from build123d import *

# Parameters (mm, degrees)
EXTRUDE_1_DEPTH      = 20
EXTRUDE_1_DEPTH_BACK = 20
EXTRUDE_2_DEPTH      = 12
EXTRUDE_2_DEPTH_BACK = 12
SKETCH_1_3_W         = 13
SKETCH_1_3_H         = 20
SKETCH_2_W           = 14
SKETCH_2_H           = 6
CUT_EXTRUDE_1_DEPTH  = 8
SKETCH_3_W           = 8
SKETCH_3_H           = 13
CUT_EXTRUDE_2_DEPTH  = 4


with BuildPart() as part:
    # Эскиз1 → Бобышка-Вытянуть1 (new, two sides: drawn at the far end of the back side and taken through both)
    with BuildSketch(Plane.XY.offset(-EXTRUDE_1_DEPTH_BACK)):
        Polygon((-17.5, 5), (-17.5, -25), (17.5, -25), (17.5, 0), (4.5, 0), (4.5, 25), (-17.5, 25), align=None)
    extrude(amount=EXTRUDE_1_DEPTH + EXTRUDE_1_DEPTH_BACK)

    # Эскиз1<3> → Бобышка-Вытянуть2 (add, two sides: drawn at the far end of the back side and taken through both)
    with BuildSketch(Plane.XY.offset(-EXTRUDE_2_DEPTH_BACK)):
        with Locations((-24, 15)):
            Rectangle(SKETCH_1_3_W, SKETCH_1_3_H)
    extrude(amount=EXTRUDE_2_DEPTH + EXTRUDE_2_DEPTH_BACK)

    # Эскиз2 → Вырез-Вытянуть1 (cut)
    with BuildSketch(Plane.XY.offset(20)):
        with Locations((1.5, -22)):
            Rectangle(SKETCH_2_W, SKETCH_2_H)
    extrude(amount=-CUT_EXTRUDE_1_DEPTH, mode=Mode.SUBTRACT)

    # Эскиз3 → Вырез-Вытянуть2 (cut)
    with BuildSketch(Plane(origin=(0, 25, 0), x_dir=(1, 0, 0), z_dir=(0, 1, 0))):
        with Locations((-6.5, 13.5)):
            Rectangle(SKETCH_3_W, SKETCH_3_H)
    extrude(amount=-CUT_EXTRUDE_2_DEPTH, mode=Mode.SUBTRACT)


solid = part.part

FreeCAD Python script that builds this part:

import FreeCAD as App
import Part
import Sketcher
from FreeCAD import Vector
Q = App.Units.Quantity


def add_polygon(sketch, points):
    """Adds a closed chain of lines whose ends are joined by coincident constraints."""
    first, n = sketch.GeometryCount, len(points)
    for a, b in zip(points, points[1:] + points[:1]):
        sketch.addGeometry(Part.LineSegment(App.Vector(*a, 0), App.Vector(*b, 0)), False)
    for i in range(n):
        sketch.addConstraint(Sketcher.Constraint("Coincident", first + i, 2, first + (i + 1) % n, 1))

doc = App.newDocument("Part")
body = doc.addObject("PartDesign::Body", "Body")

# Sketch on XY plane
sketch1 = body.newObject("Sketcher::SketchObject", "Sketch")
sketch1.AttachmentSupport = (doc.getObject("XY_Plane"), [""])
sketch1.MapMode = "FlatFace"
add_polygon(sketch1, [(-18, -25), (18, -25), (18, 0), (4, 0), (4, 25), (-18, 25)])  # lines 0-5
sketch1.addConstraint([
    Sketcher.Constraint("Horizontal", 0),
    Sketcher.Constraint("Vertical", 1),
    Sketcher.Constraint("Horizontal", 2),
    Sketcher.Constraint("Vertical", 3),
    Sketcher.Constraint("Horizontal", 4),
    Sketcher.Constraint("Vertical", 5),
    Sketcher.Constraint("Symmetric", 0, 2, 4, 2, -1, 1),
    Sketcher.Constraint("PointOnObject", 1, 2, -1),
    Sketcher.Constraint("DistanceX", 0, 1, 0, 2, Q("35 mm")),
    Sketcher.Constraint("DistanceX", 2, 2, 2, 1, Q("13 mm")),
    Sketcher.Constraint("DistanceY", 1, 1, 1, 2, Q("25 mm")),
])
pad1 = body.newObject("PartDesign::Pad", "Pad")
pad1.Profile = sketch1
pad1.Type = "TwoLengths"
pad1.Length = 20
pad1.Length2 = 20

# Sketch on XY plane
sketch2 = body.newObject("Sketcher::SketchObject", "Sketch001")
sketch2.AttachmentSupport = (doc.getObject("XY_Plane"), [""])
sketch2.MapMode = "FlatFace"
add_polygon(sketch2, [(-30, 25), (-30, 5), (-18, 5), (-18, 25)])  # lines 0-3
sketch2.addConstraint([
    Sketcher.Constraint("Vertical", 0),
    Sketcher.Constraint("Horizontal", 1),
    Sketcher.Constraint("Vertical", 2),
    Sketcher.Constraint("Horizontal", 3),
    Sketcher.Constraint("DistanceX", 1, 1, 1, 2, Q("13 mm")),
    Sketcher.Constraint("DistanceY", 0, 2, 0, 1, Q("20 mm")),
    Sketcher.Constraint("DistanceY", -1, 1, 0, 2, Q("5 mm")),
    Sketcher.Constraint("DistanceX", 0, 2, -1, 1, Q("30.5 mm")),
])
pad2 = body.newObject("PartDesign::Pad", "Pad001")
pad2.Profile = sketch2
pad2.Type = "TwoLengths"
pad2.Length = 12
pad2.Length2 = 12

# Sketch on XY plane
sketch3 = body.newObject("Sketcher::SketchObject", "Sketch002")
sketch3.AttachmentSupport = (doc.getObject("XY_Plane"), [""])
sketch3.MapMode = "FlatFace"
sketch3.AttachmentOffset = App.Placement(Vector(0, 0, 20), App.Rotation())
add_polygon(sketch3, [(-6, -19), (-6, -25), (8, -25), (8, -19)])  # lines 0-3
sketch3.addConstraint([
    Sketcher.Constraint("Vertical", 0),
    Sketcher.Constraint("Horizontal", 1),
    Sketcher.Constraint("Vertical", 2),
    Sketcher.Constraint("Horizontal", 3),
    Sketcher.Constraint("DistanceX", 1, 1, 1, 2, Q("14 mm")),
    Sketcher.Constraint("DistanceY", 0, 2, 0, 1, Q("6 mm")),
    Sketcher.Constraint("DistanceY", 0, 2, -1, 1, Q("25 mm")),
    Sketcher.Constraint("DistanceX", 0, 2, -1, 1, Q("5.5 mm")),
])
pocket1 = body.newObject("PartDesign::Pocket", "Pocket")
pocket1.Profile = sketch3
pocket1.Length = 8

# Sketch on XZ plane
sketch4 = body.newObject("Sketcher::SketchObject", "Sketch003")
sketch4.AttachmentSupport = (doc.getObject("XZ_Plane"), [""])
sketch4.MapMode = "FlatFace"
sketch4.AttachmentOffset = App.Placement(Vector(0, 0, -25), App.Rotation())
add_polygon(sketch4, [(-10, -20), (-10, -7), (-2, -7), (-2, -20)])  # lines 0-3
sketch4.addConstraint([
    Sketcher.Constraint("Vertical", 0),
    Sketcher.Constraint("Horizontal", 1),
    Sketcher.Constraint("Vertical", 2),
    Sketcher.Constraint("Horizontal", 3),
    Sketcher.Constraint("DistanceX", 1, 1, 1, 2, Q("8 mm")),
    Sketcher.Constraint("DistanceY", 0, 1, 0, 2, Q("13 mm")),
    Sketcher.Constraint("DistanceY", 0, 2, -1, 1, Q("7 mm")),
    Sketcher.Constraint("DistanceX", 0, 2, -1, 1, Q("10.5 mm")),
])
pocket2 = body.newObject("PartDesign::Pocket", "Pocket001")
pocket2.Profile = sketch4
pocket2.Length = 4
pocket2.Reversed = True

doc.recompute()
